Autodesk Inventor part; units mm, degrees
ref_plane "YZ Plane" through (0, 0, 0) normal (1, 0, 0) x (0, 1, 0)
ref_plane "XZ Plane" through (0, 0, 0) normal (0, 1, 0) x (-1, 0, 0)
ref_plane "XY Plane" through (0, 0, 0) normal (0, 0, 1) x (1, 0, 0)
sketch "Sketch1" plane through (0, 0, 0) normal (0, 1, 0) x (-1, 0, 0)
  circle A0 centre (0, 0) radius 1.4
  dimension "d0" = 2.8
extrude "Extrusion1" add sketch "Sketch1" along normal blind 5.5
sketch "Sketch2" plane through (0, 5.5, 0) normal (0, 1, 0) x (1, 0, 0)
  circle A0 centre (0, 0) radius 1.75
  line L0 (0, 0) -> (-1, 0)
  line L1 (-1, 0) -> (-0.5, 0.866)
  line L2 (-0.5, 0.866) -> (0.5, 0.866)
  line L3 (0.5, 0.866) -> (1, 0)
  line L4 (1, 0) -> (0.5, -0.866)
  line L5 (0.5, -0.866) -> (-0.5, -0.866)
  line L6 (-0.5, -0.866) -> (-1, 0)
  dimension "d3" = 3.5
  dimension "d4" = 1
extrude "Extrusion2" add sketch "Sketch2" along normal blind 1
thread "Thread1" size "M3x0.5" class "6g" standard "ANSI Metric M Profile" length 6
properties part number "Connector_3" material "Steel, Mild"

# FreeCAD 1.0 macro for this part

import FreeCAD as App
import Part
import Sketcher
from FreeCAD import Vector
Q = App.Units.Quantity


def add_polygon(sketch, points):
    """Adds a closed chain of lines whose ends are joined by coincident constraints."""
    first, n = sketch.GeometryCount, len(points)
    for a, b in zip(points, points[1:] + points[:1]):
        sketch.addGeometry(Part.LineSegment(App.Vector(*a, 0), App.Vector(*b, 0)), False)
    for i in range(n):
        sketch.addConstraint(Sketcher.Constraint("Coincident", first + i, 2, first + (i + 1) % n, 1))

doc = App.newDocument("Part")
body = doc.addObject("PartDesign::Body", "Body")

# Sketch on XZ plane
sketch1 = body.newObject("Sketcher::SketchObject", "Sketch")
sketch1.AttachmentSupport = (doc.getObject("XZ_Plane"), [""])
sketch1.MapMode = "FlatFace"
sketch1.addGeometry(Part.Circle(Vector(0, 0, 0), Vector(0, 0, 1), 1.4), False)
sketch1.addConstraint([
    Sketcher.Constraint("Coincident", 0, 3, -1, 1),
    Sketcher.Constraint("Diameter", 0, Q("2.8 mm")),
])
pad1 = body.newObject("PartDesign::Pad", "Pad")
pad1.Profile = sketch1
pad1.Length = 5.5
pad1.Reversed = True

# Sketch on XZ plane
sketch2 = body.newObject("Sketcher::SketchObject", "Sketch001")
sketch2.AttachmentSupport = (doc.getObject("XZ_Plane"), [""])
sketch2.MapMode = "FlatFace"
sketch2.AttachmentOffset = App.Placement(Vector(0, 0, -5.5), App.Rotation())
sketch2.addGeometry(Part.Circle(Vector(0, 0, 0), Vector(0, 0, 1), 1.75), False)  # 0
add_polygon(sketch2, [(-0.5, 0.866), (-1, 0), (-0.5, -0.866), (0.5, -0.866), (1, 0), (0.5, 0.866)])  # lines 1-6
sketch2.addConstraint([
    Sketcher.Constraint("Horizontal", 3),
    Sketcher.Constraint("Horizontal", 6),
    Sketcher.Constraint("Coincident", 0, 3, -1, 1),
    Sketcher.Constraint("Symmetric", 1, 2, 4, 2, -1, 1),
    Sketcher.Constraint("Symmetric", 2, 2, 5, 2, -1, 1),
    Sketcher.Constraint("PointOnObject", 1, 2, -1),
    Sketcher.Constraint("Parallel", 1, 4),
    Sketcher.Constraint("Vertical", 3, 2, 5, 2),
    Sketcher.Constraint("Diameter", 0, Q("3.5 mm")),
    Sketcher.Constraint("DistanceX", 3, 1, 3, 2, Q("1 mm")),
    Sketcher.Constraint("Distance", 1, Q("1 mm")),
    Sketcher.Constraint("DistanceX", 1, 2, -1, 1, Q("1 mm")),
])
pad2 = body.newObject("PartDesign::Pad", "Pad001")
pad2.Profile = sketch2
pad2.Length = 1
pad2.Reversed = True

doc.recompute()
